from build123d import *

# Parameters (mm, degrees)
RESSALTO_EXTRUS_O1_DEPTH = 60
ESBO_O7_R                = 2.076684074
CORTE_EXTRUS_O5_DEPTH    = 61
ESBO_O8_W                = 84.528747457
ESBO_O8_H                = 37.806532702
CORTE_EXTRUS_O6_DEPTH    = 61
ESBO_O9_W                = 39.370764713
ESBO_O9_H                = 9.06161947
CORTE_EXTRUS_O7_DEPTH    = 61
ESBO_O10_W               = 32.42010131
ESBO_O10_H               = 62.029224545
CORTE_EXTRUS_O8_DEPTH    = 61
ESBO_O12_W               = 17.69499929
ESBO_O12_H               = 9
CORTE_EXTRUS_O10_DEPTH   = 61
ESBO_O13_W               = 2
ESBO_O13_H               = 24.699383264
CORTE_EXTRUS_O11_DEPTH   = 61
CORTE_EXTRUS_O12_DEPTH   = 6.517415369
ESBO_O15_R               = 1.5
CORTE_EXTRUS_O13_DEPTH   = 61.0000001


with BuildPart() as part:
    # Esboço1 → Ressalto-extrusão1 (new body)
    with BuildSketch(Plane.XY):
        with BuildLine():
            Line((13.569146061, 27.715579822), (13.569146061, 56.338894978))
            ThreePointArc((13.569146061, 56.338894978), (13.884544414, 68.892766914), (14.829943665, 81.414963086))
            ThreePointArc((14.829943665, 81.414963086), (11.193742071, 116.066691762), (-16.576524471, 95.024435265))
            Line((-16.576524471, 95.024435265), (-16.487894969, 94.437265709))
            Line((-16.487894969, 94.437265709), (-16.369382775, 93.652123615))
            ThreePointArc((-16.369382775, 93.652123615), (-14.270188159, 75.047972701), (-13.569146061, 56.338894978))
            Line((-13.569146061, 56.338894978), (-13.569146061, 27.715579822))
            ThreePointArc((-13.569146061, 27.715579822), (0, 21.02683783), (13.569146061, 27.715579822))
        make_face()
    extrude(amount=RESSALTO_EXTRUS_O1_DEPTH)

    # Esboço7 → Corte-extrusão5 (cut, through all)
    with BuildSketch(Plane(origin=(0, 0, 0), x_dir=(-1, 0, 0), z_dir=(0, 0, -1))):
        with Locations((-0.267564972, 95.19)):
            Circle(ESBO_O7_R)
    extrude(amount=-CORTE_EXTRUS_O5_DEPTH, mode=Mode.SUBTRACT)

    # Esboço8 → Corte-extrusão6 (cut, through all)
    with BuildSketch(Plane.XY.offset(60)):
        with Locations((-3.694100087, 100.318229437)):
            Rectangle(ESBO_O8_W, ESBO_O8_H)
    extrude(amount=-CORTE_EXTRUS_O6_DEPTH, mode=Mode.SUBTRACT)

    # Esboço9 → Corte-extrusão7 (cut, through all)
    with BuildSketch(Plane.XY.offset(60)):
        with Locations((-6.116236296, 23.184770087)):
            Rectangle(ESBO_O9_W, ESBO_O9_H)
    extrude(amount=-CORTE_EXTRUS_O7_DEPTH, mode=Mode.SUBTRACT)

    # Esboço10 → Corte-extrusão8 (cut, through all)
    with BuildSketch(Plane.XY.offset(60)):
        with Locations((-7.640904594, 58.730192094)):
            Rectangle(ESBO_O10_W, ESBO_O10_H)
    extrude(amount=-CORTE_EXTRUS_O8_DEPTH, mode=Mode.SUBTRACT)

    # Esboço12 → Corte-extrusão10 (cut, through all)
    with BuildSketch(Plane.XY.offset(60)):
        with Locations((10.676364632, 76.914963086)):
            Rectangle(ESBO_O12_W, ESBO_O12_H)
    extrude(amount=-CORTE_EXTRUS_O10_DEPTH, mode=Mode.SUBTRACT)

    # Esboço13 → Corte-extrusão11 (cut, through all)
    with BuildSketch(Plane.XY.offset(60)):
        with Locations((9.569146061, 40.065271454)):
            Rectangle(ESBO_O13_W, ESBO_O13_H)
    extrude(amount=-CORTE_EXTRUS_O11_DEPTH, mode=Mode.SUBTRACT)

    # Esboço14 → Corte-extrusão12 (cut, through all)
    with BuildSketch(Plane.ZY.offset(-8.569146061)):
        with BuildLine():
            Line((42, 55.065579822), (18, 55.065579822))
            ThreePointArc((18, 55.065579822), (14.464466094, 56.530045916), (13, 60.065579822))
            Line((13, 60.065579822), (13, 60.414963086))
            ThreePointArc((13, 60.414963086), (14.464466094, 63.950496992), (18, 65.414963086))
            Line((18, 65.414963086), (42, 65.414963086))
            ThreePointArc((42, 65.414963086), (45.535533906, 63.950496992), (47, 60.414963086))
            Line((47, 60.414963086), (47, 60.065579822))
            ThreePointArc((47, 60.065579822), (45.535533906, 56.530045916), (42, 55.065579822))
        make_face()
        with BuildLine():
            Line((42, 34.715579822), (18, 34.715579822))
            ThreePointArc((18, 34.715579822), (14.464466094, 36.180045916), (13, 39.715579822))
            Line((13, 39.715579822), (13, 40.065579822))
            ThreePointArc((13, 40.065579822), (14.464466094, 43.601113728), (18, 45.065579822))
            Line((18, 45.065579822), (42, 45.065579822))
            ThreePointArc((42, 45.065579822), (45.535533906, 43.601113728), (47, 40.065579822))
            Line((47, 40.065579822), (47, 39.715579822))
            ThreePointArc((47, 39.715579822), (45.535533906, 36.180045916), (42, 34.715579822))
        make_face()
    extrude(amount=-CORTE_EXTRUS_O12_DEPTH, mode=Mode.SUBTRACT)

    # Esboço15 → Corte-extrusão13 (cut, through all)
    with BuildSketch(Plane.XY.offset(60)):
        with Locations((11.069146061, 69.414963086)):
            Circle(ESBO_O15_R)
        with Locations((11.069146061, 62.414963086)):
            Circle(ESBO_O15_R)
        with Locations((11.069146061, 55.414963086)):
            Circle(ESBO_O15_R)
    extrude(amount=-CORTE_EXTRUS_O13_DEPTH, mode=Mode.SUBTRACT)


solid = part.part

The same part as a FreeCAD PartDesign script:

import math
import FreeCAD as App
import Part
import Sketcher
from FreeCAD import Vector

doc = App.newDocument("Part")
params = doc.addObject("Spreadsheet::Sheet", "Params")
for row, (alias, value) in enumerate([
    ("sketch1_radius", "250 mm"),
    ("sketch1_radius2", "20 mm"),
    ("sketch1_radius3", "250 mm"),
    ("pad1_length", "60 mm"),
    ("sketch6_height", "9 mm"),
    ("sketch7_width", "2 mm"),
    ("sketch8_radius", "5 mm"),
    ("sketch8_height", "24 mm"),
    ("sketch8_width", "0.35 mm"),
    ("sketch9_diameter", "3 mm"),
], start=1):
    params.set(f"A{row}", alias)
    params.set(f"B{row}", "=" + value)
    params.setAlias(f"B{row}", alias)

body = doc.addObject("PartDesign::Body", "Body")

sketch1 = body.newObject("Sketcher::SketchObject", "Sketch")
sketch1.AttachmentSupport = (doc.getObject("XY_Plane"), [""])
sketch1.MapMode = "FlatFace"
sketch1.addGeometry([
    Part.LineSegment(Vector(13.569146, 27.71558, 0), Vector(13.569146, 56.338895, 0)),
    Part.ArcOfCircle(Part.Circle(Vector(263.569146, 56.338895, 0), Vector(0, 0, 1), 250), math.radians(174.243308), math.radians(180)),
    Part.ArcOfCircle(Part.Circle(Vector(3.241592, 97.71558, 0), Vector(0, 0, 1), 20), math.radians(-54.590411), math.radians(187.733017)),
    Part.LineSegment(Vector(-16.576524, 95.024435, 0), Vector(-16.487895, 94.437266, 0)),
    Part.LineSegment(Vector(-16.487895, 94.437266, 0), Vector(-16.369383, 93.652124, 0)),
    Part.ArcOfCircle(Part.Circle(Vector(-263.569146, 56.338895, 0), Vector(0, 0, 1), 250), math.radians(0), math.radians(8.583634)),
    Part.LineSegment(Vector(-13.569146, 56.338895, 0), Vector(-13.569146, 27.71558, 0)),
    Part.ArcOfCircle(Part.Circle(Vector(0, 38.134763, 0), Vector(0, 0, 1), 17.107925), math.radians(-142.48084), math.radians(-37.51916)),
], False)
sketch1.addConstraint([
    Sketcher.Constraint("Coincident", 0, 2, 1, 2),
    Sketcher.Constraint("Coincident", 1, 1, 2, 1),
    Sketcher.Constraint("Coincident", 2, 2, 3, 1),
    Sketcher.Constraint("Coincident", 3, 2, 4, 1),
    Sketcher.Constraint("Coincident", 4, 2, 5, 2),
    Sketcher.Constraint("Coincident", 5, 1, 6, 1),
    Sketcher.Constraint("Coincident", 6, 2, 7, 1),
    Sketcher.Constraint("Coincident", 7, 2, 0, 1),
    Sketcher.Constraint("Vertical", 0),
    Sketcher.Constraint("Vertical", 6),
    Sketcher.Constraint("PointOnObject", 7, 3, -2),
    Sketcher.Constraint("Radius", 1, 250.0),
    Sketcher.Constraint("Radius", 2, 20.0),
    Sketcher.Constraint("Radius", 5, 250.0),
    Sketcher.Constraint("Radius", 7, 17.107925),
    Sketcher.Constraint("DistanceY", 7, 3, 1, 1, 43.2802),
    Sketcher.Constraint("Distance", 3, 0.593821),
    Sketcher.Constraint("DistanceY", 0, 1, 0, 2, 28.623315),
    Sketcher.Constraint("DistanceY", 6, 2, 6, 1, 28.623315),
    Sketcher.Constraint("DistanceY", -1, 1, 2, 3, 97.71558),
    Sketcher.Constraint("DistanceY", -1, 1, 6, 2, 27.71558),
    Sketcher.Constraint("DistanceY", -1, 1, 7, 2, 27.71558),
    Sketcher.Constraint("DistanceX", 5, 3, 1, 3, 527.138292),
    Sketcher.Constraint("DistanceY", 1, 3, 1, 1, 25.076068),
    Sketcher.Constraint("DistanceY", 5, 3, 1, 1, 25.076068),
    Sketcher.Constraint("DistanceX", 2, 2, 1, 1, 31.406468),
    Sketcher.Constraint("DistanceX", 2, 2, 3, 2, 0.08863),
    Sketcher.Constraint("DistanceX", 2, 2, 4, 2, 0.207142),
])
sketch1.setExpression("Constraints[11]", "Params.sketch1_radius")
sketch1.setExpression("Constraints[12]", "Params.sketch1_radius2")
sketch1.setExpression("Constraints[13]", "Params.sketch1_radius3")
pad1 = body.newObject("PartDesign::Pad", "Pad")
pad1.Profile = sketch1
pad1.setExpression("Length", "Params.pad1_length")

sketch2 = body.newObject("Sketcher::SketchObject", "Sketch001")
sketch2.AttachmentSupport = (doc.getObject("XY_Plane"), [""])
sketch2.MapMode = "FlatFace"
sketch2.addGeometry(Part.Circle(Vector(0.3, 95.2, 0), Vector(0, 0, 1), 2.1), False)
sketch2.addConstraint([
    Sketcher.Constraint("Diameter", 0, 4.153368),
    Sketcher.Constraint("DistanceY", -1, 1, 0, 3, 95.19),
    Sketcher.Constraint("DistanceX", -1, 1, 0, 3, 0.267565),
])
pocket1 = body.newObject("PartDesign::Pocket", "Pocket")
pocket1.Profile = sketch2
pocket1.Type = "ThroughAll"
pocket1.Reversed = True

sketch3 = body.newObject("Sketcher::SketchObject", "Sketch002")
sketch3.AttachmentSupport = (doc.getObject("XY_Plane"), [""])
sketch3.MapMode = "FlatFace"
sketch3.AttachmentOffset = App.Placement(Vector(0, 0, 60), App.Rotation())
sketch3.addGeometry([
    Part.LineSegment(Vector(-46, 119, 0), Vector(-46, 81, 0)),
    Part.LineSegment(Vector(-46, 81, 0), Vector(39, 81, 0)),
    Part.LineSegment(Vector(39, 81, 0), Vector(39, 119, 0)),
    Part.LineSegment(Vector(39, 119, 0), Vector(-46, 119, 0)),
], False)
sketch3.addConstraint([
    Sketcher.Constraint("Coincident", 0, 2, 1, 1),
    Sketcher.Constraint("Coincident", 1, 2, 2, 1),
    Sketcher.Constraint("Coincident", 2, 2, 3, 1),
    Sketcher.Constraint("Coincident", 3, 2, 0, 1),
    Sketcher.Constraint("Vertical", 0),
    Sketcher.Constraint("Horizontal", 1),
    Sketcher.Constraint("Vertical", 2),
    Sketcher.Constraint("Horizontal", 3),
    Sketcher.Constraint("DistanceX", 1, 1, 1, 2, 84.528747),
    Sketcher.Constraint("DistanceY", 0, 2, 0, 1, 37.806533),
    Sketcher.Constraint("DistanceX", 0, 2, -1, 1, 45.958474),
    Sketcher.Constraint("DistanceY", -1, 1, 0, 2, 81.414963),
])
pocket2 = body.newObject("PartDesign::Pocket", "Pocket001")
pocket2.Profile = sketch3
pocket2.Type = "ThroughAll"

sketch4 = body.newObject("Sketcher::SketchObject", "Sketch003")
sketch4.AttachmentSupport = (doc.getObject("XY_Plane"), [""])
sketch4.MapMode = "FlatFace"
sketch4.AttachmentOffset = App.Placement(Vector(0, 0, 60), App.Rotation())
sketch4.addGeometry([
    Part.LineSegment(Vector(-26, 28, 0), Vector(-26, 19, 0)),
    Part.LineSegment(Vector(-26, 19, 0), Vector(14, 19, 0)),
    Part.LineSegment(Vector(14, 19, 0), Vector(14, 28, 0)),
    Part.LineSegment(Vector(14, 28, 0), Vector(-26, 28, 0)),
], False)
sketch4.addConstraint([
    Sketcher.Constraint("Coincident", 0, 2, 1, 1),
    Sketcher.Constraint("Coincident", 1, 2, 2, 1),
    Sketcher.Constraint("Coincident", 2, 2, 3, 1),
    Sketcher.Constraint("Coincident", 3, 2, 0, 1),
    Sketcher.Constraint("Vertical", 0),
    Sketcher.Constraint("Horizontal", 1),
    Sketcher.Constraint("Vertical", 2),
    Sketcher.Constraint("Horizontal", 3),
    Sketcher.Constraint("DistanceY", 0, 2, 0, 1, 9.061619),
    Sketcher.Constraint("DistanceX", 1, 1, 1, 2, 39.370765),
    Sketcher.Constraint("DistanceX", 0, 2, -1, 1, 25.801619),
    Sketcher.Constraint("DistanceY", -1, 1, 0, 2, 18.65396),
])
pocket3 = body.newObject("PartDesign::Pocket", "Pocket002")
pocket3.Profile = sketch4
pocket3.Type = "ThroughAll"

sketch5 = body.newObject("Sketcher::SketchObject", "Sketch004")
sketch5.AttachmentSupport = (doc.getObject("XY_Plane"), [""])
sketch5.MapMode = "FlatFace"
sketch5.AttachmentOffset = App.Placement(Vector(0, 0, 60), App.Rotation())
sketch5.addGeometry([
    Part.LineSegment(Vector(-24, 90, 0), Vector(-24, 28, 0)),
    Part.LineSegment(Vector(-24, 28, 0), Vector(9, 28, 0)),
    Part.LineSegment(Vector(9, 28, 0), Vector(9, 90, 0)),
    Part.LineSegment(Vector(9, 90, 0), Vector(-24, 90, 0)),
], False)
sketch5.addConstraint([
    Sketcher.Constraint("Coincident", 0, 2, 1, 1),
    Sketcher.Constraint("Coincident", 1, 2, 2, 1),
    Sketcher.Constraint("Coincident", 2, 2, 3, 1),
    Sketcher.Constraint("Coincident", 3, 2, 0, 1),
    Sketcher.Constraint("Vertical", 0),
    Sketcher.Constraint("Horizontal", 1),
    Sketcher.Constraint("Vertical", 2),
    Sketcher.Constraint("Horizontal", 3),
    Sketcher.Constraint("DistanceX", 1, 1, 1, 2, 32.420101),
    Sketcher.Constraint("DistanceY", 0, 2, 0, 1, 62.029225),
    Sketcher.Constraint("DistanceY", -1, 1, 0, 2, 27.71558),
    Sketcher.Constraint("DistanceX", 0, 2, -1, 1, 23.850955),
])
pocket4 = body.newObject("PartDesign::Pocket", "Pocket003")
pocket4.Profile = sketch5
pocket4.Type = "ThroughAll"

sketch6 = body.newObject("Sketcher::SketchObject", "Sketch005")
sketch6.AttachmentSupport = (doc.getObject("XY_Plane"), [""])
sketch6.MapMode = "FlatFace"
sketch6.AttachmentOffset = App.Placement(Vector(0, 0, 60), App.Rotation())
sketch6.addGeometry([
    Part.LineSegment(Vector(2, 81, 0), Vector(2, 72, 0)),
    Part.LineSegment(Vector(2, 72, 0), Vector(20, 72, 0)),
    Part.LineSegment(Vector(20, 72, 0), Vector(20, 81, 0)),
    Part.LineSegment(Vector(20, 81, 0), Vector(2, 81, 0)),
], False)
sketch6.addConstraint([
    Sketcher.Constraint("Coincident", 0, 2, 1, 1),
    Sketcher.Constraint("Coincident", 1, 2, 2, 1),
    Sketcher.Constraint("Coincident", 2, 2, 3, 1),
    Sketcher.Constraint("Coincident", 3, 2, 0, 1),
    Sketcher.Constraint("Vertical", 0),
    Sketcher.Constraint("Horizontal", 1),
    Sketcher.Constraint("Vertical", 2),
    Sketcher.Constraint("Horizontal", 3),
    Sketcher.Constraint("DistanceY", 0, 2, 0, 1, 9.0),
    Sketcher.Constraint("DistanceX", 1, 1, 1, 2, 17.694999),
    Sketcher.Constraint("DistanceX", -1, 1, 0, 2, 1.828865),
    Sketcher.Constraint("DistanceY", -1, 1, 0, 2, 72.414963),
])
sketch6.setExpression("Constraints[8]", "Params.sketch6_height")
pocket5 = body.newObject("PartDesign::Pocket", "Pocket004")
pocket5.Profile = sketch6
pocket5.Type = "ThroughAll"

sketch7 = body.newObject("Sketcher::SketchObject", "Sketch006")
sketch7.AttachmentSupport = (doc.getObject("XY_Plane"), [""])
sketch7.MapMode = "FlatFace"
sketch7.AttachmentOffset = App.Placement(Vector(0, 0, 60), App.Rotation())
sketch7.addGeometry([
    Part.LineSegment(Vector(8.6, 52.4, 0), Vector(8.6, 27.7, 0)),
    Part.LineSegment(Vector(8.6, 27.7, 0), Vector(10.6, 27.7, 0)),
    Part.LineSegment(Vector(10.6, 27.7, 0), Vector(10.6, 52.4, 0)),
    Part.LineSegment(Vector(10.6, 52.4, 0), Vector(8.6, 52.4, 0)),
], False)
sketch7.addConstraint([
    Sketcher.Constraint("Coincident", 0, 2, 1, 1),
    Sketcher.Constraint("Coincident", 1, 2, 2, 1),
    Sketcher.Constraint("Coincident", 2, 2, 3, 1),
    Sketcher.Constraint("Coincident", 3, 2, 0, 1),
    Sketcher.Constraint("Vertical", 0),
    Sketcher.Constraint("Horizontal", 1),
    Sketcher.Constraint("Vertical", 2),
    Sketcher.Constraint("Horizontal", 3),
    Sketcher.Constraint("DistanceX", 1, 1, 1, 2, 2.0),
    Sketcher.Constraint("DistanceY", 0, 2, 0, 1, 24.699383),
    Sketcher.Constraint("DistanceY", -1, 1, 0, 2, 27.71558),
    Sketcher.Constraint("DistanceX", -1, 1, 0, 2, 8.569146),
])
sketch7.setExpression("Constraints[8]", "Params.sketch7_width")
pocket6 = body.newObject("PartDesign::Pocket", "Pocket005")
pocket6.Profile = sketch7
pocket6.Type = "ThroughAll"

sketch8 = body.newObject("Sketcher::SketchObject", "Sketch007")
sketch8.AttachmentSupport = (doc.getObject("YZ_Plane"), [""])
sketch8.MapMode = "FlatFace"
sketch8.AttachmentOffset = App.Placement(Vector(0, 0, 8.569146), App.Rotation())
sketch8.addGeometry([
    Part.LineSegment(Vector(55.07, 18, 0), Vector(55.07, 42, 0)),
    Part.ArcOfCircle(Part.Circle(Vector(60.07, 42, 0), Vector(0, 0, 1), 5), math.radians(90), math.radians(180)),
    Part.LineSegment(Vector(60.07, 47, 0), Vector(60.41, 47, 0)),
    Part.ArcOfCircle(Part.Circle(Vector(60.41, 42, 0), Vector(0, 0, 1), 5), math.radians(0), math.radians(90)),
    Part.LineSegment(Vector(65.41, 42, 0), Vector(65.41, 18, 0)),
    Part.ArcOfCircle(Part.Circle(Vector(60.41, 18, 0), Vector(0, 0, 1), 5), math.radians(-90), math.radians(0)),
    Part.LineSegment(Vector(60.41, 13, 0), Vector(60.07, 13, 0)),
    Part.ArcOfCircle(Part.Circle(Vector(60.07, 18, 0), Vector(0, 0, 1), 5), math.radians(180), math.radians(270)),
    Part.LineSegment(Vector(34.72, 18, 0), Vector(34.72, 42, 0)),
    Part.ArcOfCircle(Part.Circle(Vector(39.72, 42, 0), Vector(0, 0, 1), 5), math.radians(90), math.radians(180)),
    Part.LineSegment(Vector(39.72, 47, 0), Vector(40.07, 47, 0)),
    Part.ArcOfCircle(Part.Circle(Vector(40.07, 42, 0), Vector(0, 0, 1), 5), math.radians(0), math.radians(90)),
    Part.LineSegment(Vector(45.07, 42, 0), Vector(45.07, 18, 0)),
    Part.ArcOfCircle(Part.Circle(Vector(40.07, 18, 0), Vector(0, 0, 1), 5), math.radians(-90), math.radians(0)),
    Part.LineSegment(Vector(40.07, 13, 0), Vector(39.72, 13, 0)),
    Part.ArcOfCircle(Part.Circle(Vector(39.72, 18, 0), Vector(0, 0, 1), 5), math.radians(180), math.radians(270)),
], False)
sketch8.addConstraint([
    Sketcher.Constraint("Tangent", 0, 2, 1, 2),
    Sketcher.Constraint("Tangent", 1, 1, 2, 1),
    Sketcher.Constraint("Tangent", 2, 2, 3, 2),
    Sketcher.Constraint("Tangent", 3, 1, 4, 1),
    Sketcher.Constraint("Tangent", 4, 2, 5, 2),
    Sketcher.Constraint("Tangent", 5, 1, 6, 1),
    Sketcher.Constraint("Tangent", 6, 2, 7, 2),
    Sketcher.Constraint("Tangent", 7, 1, 0, 1),
    Sketcher.Constraint("Tangent", 8, 2, 9, 2),
    Sketcher.Constraint("Tangent", 9, 1, 10, 1),
    Sketcher.Constraint("Tangent", 10, 2, 11, 2),
    Sketcher.Constraint("Tangent", 11, 1, 12, 1),
    Sketcher.Constraint("Tangent", 12, 2, 13, 2),
    Sketcher.Constraint("Tangent", 13, 1, 14, 1),
    Sketcher.Constraint("Tangent", 14, 2, 15, 2),
    Sketcher.Constraint("Tangent", 15, 1, 8, 1),
    Sketcher.Constraint("Vertical", 0),
    Sketcher.Constraint("Horizontal", 2),
    Sketcher.Constraint("Vertical", 4),
    Sketcher.Constraint("Horizontal", 6),
    Sketcher.Constraint("Vertical", 8),
    Sketcher.Constraint("Horizontal", 10),
    Sketcher.Constraint("Vertical", 12),
    Sketcher.Constraint("Horizontal", 14),
    Sketcher.Constraint("Equal", 1, 3),
    Sketcher.Constraint("Equal", 3, 5),
    Sketcher.Constraint("Equal", 5, 7),
    Sketcher.Constraint("Equal", 7, 9),
    Sketcher.Constraint("Equal", 9, 11),
    Sketcher.Constraint("Equal", 11, 13),
    Sketcher.Constraint("Equal", 13, 15),
    Sketcher.Constraint("Horizontal", 3, 3, 9, 3),
    Sketcher.Constraint("Horizontal", 7, 3, 13, 3),
    Sketcher.Constraint("Radius", 1, 5.0),
    Sketcher.Constraint("DistanceY", 0, 1, 0, 2, 24.0),
    Sketcher.Constraint("DistanceY", -1, 1, 1, 3, 42.0),
    Sketcher.Constraint("DistanceX", 11, 3, 1, 3, 20.0),
    Sketcher.Constraint("DistanceX", 10, 1, 10, 2, 0.35),
    Sketcher.Constraint("DistanceX", 2, 1, 2, 2, 0.349383),
    Sketcher.Constraint("DistanceX", -1, 1, 1, 3, 60.06558),
])
sketch8.setExpression("Constraints[33]", "Params.sketch8_radius")
sketch8.setExpression("Constraints[34]", "Params.sketch8_height")
sketch8.setExpression("Constraints[37]", "Params.sketch8_width")
pocket7 = body.newObject("PartDesign::Pocket", "Pocket006")
pocket7.Profile = sketch8
pocket7.Type = "ThroughAll"
pocket7.Reversed = True

sketch9 = body.newObject("Sketcher::SketchObject", "Sketch008")
sketch9.AttachmentSupport = (doc.getObject("XY_Plane"), [""])
sketch9.MapMode = "FlatFace"
sketch9.AttachmentOffset = App.Placement(Vector(0, 0, 60), App.Rotation())
sketch9.addGeometry([
    Part.Circle(Vector(11.1, 69.4, 0), Vector(0, 0, 1), 1.5),
    Part.Circle(Vector(11.1, 62.4, 0), Vector(0, 0, 1), 1.5),
    Part.Circle(Vector(11.1, 55.4, 0), Vector(0, 0, 1), 1.5),
], False)
sketch9.addConstraint([
    Sketcher.Constraint("Equal", 0, 1),
    Sketcher.Constraint("Equal", 1, 2),
    Sketcher.Constraint("Vertical", 0, 3, 1, 3),
    Sketcher.Constraint("Vertical", 1, 3, 2, 3),
    Sketcher.Constraint("Diameter", 0, 3.0),
    Sketcher.Constraint("DistanceY", 1, 3, 0, 3, 7.0),
    Sketcher.Constraint("DistanceY", 2, 3, 1, 3, 7.0),
    Sketcher.Constraint("DistanceX", -1, 1, 0, 3, 11.069146),
    Sketcher.Constraint("DistanceY", -1, 1, 0, 3, 69.414963),
])
sketch9.setExpression("Constraints[4]", "Params.sketch9_diameter")
pocket8 = body.newObject("PartDesign::Pocket", "Pocket007")
pocket8.Profile = sketch9
pocket8.Type = "ThroughAll"

doc.recompute()
